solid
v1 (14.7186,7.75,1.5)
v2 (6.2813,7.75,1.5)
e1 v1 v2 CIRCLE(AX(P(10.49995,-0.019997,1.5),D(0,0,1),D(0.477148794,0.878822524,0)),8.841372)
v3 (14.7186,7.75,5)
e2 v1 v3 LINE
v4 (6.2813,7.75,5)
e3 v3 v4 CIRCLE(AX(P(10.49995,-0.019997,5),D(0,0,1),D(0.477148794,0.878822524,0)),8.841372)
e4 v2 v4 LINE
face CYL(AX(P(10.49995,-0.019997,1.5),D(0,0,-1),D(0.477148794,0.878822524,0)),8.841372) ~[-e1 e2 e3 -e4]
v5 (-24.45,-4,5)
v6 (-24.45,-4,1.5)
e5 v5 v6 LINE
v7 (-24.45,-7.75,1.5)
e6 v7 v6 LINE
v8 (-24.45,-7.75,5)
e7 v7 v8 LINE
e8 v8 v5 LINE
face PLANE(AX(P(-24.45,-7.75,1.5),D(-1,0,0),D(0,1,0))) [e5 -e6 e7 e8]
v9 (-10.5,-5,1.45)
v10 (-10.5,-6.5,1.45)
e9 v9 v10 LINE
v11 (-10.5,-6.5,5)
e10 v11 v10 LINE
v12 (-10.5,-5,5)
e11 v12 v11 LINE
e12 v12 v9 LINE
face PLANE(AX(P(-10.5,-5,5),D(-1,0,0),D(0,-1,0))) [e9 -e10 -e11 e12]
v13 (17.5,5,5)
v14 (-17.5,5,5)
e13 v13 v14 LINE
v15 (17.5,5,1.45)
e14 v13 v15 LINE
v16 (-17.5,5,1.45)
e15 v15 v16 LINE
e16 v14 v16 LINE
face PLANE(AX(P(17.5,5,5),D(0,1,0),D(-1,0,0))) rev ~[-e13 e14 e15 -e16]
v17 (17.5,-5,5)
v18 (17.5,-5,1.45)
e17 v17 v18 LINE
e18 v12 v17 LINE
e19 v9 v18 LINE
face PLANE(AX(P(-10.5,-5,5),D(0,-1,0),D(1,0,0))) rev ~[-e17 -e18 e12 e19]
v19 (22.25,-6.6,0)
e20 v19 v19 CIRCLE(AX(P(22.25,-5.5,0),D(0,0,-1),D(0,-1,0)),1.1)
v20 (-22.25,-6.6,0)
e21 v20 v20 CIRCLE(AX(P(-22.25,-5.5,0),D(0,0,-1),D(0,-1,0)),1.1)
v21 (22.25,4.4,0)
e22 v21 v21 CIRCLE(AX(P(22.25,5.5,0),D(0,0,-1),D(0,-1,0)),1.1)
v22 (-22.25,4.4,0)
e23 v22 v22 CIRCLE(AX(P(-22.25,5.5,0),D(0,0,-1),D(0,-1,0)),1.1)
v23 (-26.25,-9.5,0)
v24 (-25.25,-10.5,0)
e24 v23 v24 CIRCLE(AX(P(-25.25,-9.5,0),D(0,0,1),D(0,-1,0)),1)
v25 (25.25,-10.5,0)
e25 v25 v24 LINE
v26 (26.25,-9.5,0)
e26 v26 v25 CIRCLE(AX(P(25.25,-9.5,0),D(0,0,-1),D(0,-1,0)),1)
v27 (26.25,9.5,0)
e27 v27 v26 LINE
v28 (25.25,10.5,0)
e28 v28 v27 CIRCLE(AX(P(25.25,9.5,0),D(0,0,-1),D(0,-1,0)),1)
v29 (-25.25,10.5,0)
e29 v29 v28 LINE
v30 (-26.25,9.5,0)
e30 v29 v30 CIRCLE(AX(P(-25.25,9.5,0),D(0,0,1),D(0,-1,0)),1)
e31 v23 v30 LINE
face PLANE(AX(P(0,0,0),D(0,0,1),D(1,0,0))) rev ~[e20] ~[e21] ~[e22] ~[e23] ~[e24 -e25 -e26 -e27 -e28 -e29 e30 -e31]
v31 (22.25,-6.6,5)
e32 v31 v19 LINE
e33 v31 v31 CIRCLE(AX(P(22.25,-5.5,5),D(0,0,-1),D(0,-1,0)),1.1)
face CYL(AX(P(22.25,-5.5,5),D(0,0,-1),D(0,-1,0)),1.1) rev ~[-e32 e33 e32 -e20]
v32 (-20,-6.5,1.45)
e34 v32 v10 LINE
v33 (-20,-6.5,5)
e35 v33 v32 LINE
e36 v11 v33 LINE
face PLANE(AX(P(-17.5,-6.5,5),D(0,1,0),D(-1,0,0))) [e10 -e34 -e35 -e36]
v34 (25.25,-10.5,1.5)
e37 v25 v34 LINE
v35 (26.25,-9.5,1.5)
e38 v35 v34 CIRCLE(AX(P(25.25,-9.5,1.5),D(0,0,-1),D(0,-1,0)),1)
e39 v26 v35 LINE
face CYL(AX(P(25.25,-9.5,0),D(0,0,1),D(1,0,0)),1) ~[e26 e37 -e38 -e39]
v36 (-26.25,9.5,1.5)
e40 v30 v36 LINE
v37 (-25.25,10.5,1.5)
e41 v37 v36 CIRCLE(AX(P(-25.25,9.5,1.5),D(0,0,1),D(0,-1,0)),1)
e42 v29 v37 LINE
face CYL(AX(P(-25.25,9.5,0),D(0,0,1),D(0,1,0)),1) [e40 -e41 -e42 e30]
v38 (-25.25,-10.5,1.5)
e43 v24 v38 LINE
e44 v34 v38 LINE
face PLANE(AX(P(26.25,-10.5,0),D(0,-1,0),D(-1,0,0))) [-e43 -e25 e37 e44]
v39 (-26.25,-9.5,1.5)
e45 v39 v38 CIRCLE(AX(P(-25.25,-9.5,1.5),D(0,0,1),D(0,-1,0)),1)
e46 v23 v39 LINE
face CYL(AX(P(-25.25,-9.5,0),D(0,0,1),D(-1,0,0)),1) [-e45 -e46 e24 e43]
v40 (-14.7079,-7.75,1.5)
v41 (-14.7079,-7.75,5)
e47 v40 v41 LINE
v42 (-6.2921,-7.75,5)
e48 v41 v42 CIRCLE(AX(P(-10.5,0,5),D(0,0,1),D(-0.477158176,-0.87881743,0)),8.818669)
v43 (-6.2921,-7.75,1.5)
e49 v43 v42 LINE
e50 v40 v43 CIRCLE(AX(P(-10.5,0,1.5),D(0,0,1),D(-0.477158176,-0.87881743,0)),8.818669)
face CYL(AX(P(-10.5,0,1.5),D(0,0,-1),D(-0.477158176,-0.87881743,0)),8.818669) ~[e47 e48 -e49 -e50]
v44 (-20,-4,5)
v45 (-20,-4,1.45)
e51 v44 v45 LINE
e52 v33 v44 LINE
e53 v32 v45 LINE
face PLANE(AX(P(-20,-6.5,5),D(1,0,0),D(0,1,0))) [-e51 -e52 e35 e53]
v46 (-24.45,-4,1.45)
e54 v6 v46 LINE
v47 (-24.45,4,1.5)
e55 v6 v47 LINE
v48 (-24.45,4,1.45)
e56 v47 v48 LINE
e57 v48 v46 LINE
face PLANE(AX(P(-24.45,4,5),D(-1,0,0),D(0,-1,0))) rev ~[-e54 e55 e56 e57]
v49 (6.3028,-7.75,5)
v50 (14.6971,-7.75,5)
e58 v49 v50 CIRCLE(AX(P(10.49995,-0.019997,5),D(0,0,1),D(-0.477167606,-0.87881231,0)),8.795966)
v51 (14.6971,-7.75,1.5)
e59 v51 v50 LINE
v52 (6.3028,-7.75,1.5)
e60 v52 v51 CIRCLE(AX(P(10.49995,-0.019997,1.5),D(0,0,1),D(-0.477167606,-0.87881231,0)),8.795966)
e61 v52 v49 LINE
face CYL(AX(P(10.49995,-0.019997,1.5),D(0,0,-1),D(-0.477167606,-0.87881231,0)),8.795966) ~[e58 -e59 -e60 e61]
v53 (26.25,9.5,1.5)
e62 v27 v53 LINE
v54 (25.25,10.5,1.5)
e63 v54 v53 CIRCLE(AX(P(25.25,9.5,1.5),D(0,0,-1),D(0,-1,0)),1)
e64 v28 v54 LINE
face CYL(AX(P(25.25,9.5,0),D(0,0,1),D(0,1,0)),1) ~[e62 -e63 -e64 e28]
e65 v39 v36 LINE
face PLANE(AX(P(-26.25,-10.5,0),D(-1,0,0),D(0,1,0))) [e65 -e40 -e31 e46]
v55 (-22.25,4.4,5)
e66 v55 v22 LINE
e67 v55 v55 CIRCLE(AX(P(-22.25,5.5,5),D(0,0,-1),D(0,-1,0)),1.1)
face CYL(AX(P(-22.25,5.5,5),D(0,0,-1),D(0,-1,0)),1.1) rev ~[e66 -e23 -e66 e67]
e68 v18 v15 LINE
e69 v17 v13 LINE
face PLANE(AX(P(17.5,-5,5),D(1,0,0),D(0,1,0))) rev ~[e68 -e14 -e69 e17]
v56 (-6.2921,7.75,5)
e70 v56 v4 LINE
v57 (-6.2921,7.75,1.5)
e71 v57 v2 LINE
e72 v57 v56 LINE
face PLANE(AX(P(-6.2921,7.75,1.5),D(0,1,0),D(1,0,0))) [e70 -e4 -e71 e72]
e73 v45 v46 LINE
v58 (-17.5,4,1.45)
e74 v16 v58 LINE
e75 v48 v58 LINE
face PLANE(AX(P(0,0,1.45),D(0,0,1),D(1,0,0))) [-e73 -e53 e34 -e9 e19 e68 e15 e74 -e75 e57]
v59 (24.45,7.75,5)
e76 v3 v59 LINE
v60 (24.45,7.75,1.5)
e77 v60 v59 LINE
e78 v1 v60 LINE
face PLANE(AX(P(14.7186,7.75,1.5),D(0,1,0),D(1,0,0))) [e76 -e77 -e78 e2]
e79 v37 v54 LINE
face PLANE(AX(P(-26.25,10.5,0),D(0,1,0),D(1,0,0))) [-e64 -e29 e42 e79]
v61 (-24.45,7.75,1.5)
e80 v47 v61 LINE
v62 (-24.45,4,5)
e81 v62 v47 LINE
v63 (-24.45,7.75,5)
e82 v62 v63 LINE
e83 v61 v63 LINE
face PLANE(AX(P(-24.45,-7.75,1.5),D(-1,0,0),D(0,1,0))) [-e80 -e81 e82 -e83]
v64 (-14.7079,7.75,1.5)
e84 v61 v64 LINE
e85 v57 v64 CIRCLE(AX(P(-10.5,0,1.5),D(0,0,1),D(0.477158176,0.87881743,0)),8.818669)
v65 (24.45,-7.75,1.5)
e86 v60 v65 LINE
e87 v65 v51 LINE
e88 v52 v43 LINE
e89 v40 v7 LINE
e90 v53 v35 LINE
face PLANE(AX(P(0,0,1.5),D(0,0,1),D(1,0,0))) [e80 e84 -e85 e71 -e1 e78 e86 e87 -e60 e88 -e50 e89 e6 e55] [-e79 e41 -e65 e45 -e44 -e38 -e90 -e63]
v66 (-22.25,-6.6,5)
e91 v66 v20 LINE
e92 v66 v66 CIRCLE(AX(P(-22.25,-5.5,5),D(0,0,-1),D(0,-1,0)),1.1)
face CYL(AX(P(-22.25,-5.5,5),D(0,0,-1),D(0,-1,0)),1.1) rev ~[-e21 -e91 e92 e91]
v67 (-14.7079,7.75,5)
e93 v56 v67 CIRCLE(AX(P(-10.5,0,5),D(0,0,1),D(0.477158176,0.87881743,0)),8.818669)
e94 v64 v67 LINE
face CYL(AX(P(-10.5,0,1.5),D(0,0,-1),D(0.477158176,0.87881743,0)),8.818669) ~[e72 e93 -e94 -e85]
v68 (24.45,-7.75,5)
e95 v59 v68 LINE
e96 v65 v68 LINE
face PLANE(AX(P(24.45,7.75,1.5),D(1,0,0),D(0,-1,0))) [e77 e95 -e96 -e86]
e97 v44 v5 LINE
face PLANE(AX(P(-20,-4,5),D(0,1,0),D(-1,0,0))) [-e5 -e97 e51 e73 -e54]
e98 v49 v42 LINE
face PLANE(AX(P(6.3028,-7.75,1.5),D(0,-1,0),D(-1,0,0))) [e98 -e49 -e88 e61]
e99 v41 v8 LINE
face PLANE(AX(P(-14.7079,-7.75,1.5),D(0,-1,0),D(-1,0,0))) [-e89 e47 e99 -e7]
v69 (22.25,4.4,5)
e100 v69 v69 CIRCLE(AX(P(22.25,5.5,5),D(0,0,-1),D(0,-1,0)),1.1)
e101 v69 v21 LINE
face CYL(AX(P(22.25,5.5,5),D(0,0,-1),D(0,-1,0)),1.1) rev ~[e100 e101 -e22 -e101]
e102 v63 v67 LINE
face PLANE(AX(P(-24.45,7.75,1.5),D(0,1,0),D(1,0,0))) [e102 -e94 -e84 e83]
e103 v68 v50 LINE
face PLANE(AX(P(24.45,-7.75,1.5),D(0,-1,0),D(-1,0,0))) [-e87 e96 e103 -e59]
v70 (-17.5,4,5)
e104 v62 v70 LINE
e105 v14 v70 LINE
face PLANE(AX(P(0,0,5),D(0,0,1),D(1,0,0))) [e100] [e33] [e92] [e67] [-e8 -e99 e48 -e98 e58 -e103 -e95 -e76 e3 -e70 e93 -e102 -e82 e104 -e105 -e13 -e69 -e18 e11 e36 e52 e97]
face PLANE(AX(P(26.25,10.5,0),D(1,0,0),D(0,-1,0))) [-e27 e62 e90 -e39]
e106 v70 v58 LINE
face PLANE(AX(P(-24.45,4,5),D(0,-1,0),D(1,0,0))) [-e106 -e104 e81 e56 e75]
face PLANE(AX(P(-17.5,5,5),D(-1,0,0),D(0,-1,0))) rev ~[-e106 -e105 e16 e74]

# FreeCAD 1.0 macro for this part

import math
import FreeCAD as App
import Part
import Sketcher

V = App.Vector
Q = App.Units.Quantity


def edges_at(feature, points):
    """Names of the edges that pass closest to the given points."""
    edges = feature.Shape.Edges
    near = lambda p: min(range(len(edges)), key=lambda i: edges[i].distToShape(Part.Vertex(*p))[0])
    return sorted({f"Edge{near(p) + 1}" for p in points})

doc = App.newDocument("Part")
params = doc.addObject("Spreadsheet::Sheet", "Params")
for row, (alias, value) in enumerate([
    ("sketch1_height", "21 mm"),
    ("sketch1_width", "52.5 mm"),
    ("pad1_length", "1.5 mm"),
    ("sketch2_height", "15.5 mm"),
    ("pad2_length", "3.5 mm"),
    ("sketch3_diameter", "2.2 mm"),
    ("hole_diameter", "2.2 mm"),
    ("fillet_radius", "1 mm"),
    ("sketch4_width", "35 mm"),
    ("sketch4_height", "10 mm"),
    ("sketch4_width2", "9.5 mm"),
    ("sketch4_height2", "1.5 mm"),
    ("sketch4_width3", "28 mm"),
    ("pocket1_length", "3.55 mm"),
], start=1):
    params.set(f"A{row}", alias)
    params.set(f"B{row}", "=" + value)
    params.setAlias(f"B{row}", alias)

body = doc.addObject("PartDesign::Body", "Body")

# Sketch on XY plane
sketch1 = body.newObject("Sketcher::SketchObject", "Sketch")
sketch1.AttachmentSupport = (doc.getObject("XY_Plane"), [""])
sketch1.MapMode = "FlatFace"
sketch1.addGeometry([
    Part.LineSegment(V(26, 10, 0), V(-26, 10, 0)),
    Part.LineSegment(V(-26, 10, 0), V(-26, -10, 0)),
    Part.LineSegment(V(-26, -10, 0), V(26, -10, 0)),
    Part.LineSegment(V(26, -10, 0), V(26, 10, 0)),
], False)
sketch1.addConstraint([
    Sketcher.Constraint("Coincident", 0, 2, 1, 1),
    Sketcher.Constraint("Coincident", 1, 2, 2, 1),
    Sketcher.Constraint("Coincident", 2, 2, 3, 1),
    Sketcher.Constraint("Coincident", 3, 2, 0, 1),
    Sketcher.Constraint("Horizontal", 0),
    Sketcher.Constraint("Vertical", 1),
    Sketcher.Constraint("Horizontal", 2),
    Sketcher.Constraint("Vertical", 3),
    Sketcher.Constraint("Symmetric", 0, 2, 2, 2, -1, 1),
    Sketcher.Constraint("DistanceY", 1, 2, 1, 1, Q("21 mm")),
    Sketcher.Constraint("DistanceX", 0, 2, 0, 1, Q("52.5 mm")),
])
sketch1.setExpression("Constraints[9]", "Params.sketch1_height")
sketch1.setExpression("Constraints[10]", "Params.sketch1_width")
pad1 = body.newObject("PartDesign::Pad", "Pad")
pad1.Profile = sketch1
pad1.setExpression("Length", "Params.pad1_length")

# Sketch on XY plane
sketch2 = body.newObject("Sketcher::SketchObject", "Sketch001")
sketch2.AttachmentSupport = (doc.getObject("XY_Plane"), [""])
sketch2.MapMode = "FlatFace"
sketch2.AttachmentOffset = App.Placement(V(0, 0, 1.5), App.Rotation())
sketch2.addGeometry([
    Part.LineSegment(V(-24, 8, 0), V(-24, -8, 0)),  # 0
    Part.LineSegment(V(-24, -8, 0), V(-15, -8, 0)),  # 1
    Part.ArcOfCircle(Part.Circle(V(-10, 0, 0), V(0, 0, 1), 9), math.radians(-118), math.radians(-62)),  # 2
    Part.LineSegment(V(-6, -8, 0), V(6, -8, 0)),  # 3
    Part.ArcOfCircle(Part.Circle(V(10, 0, 0), V(0, 0, 1), 9), math.radians(-119), math.radians(-62)),  # 4
    Part.LineSegment(V(15, -8, 0), V(24, -8, 0)),  # 5
    Part.LineSegment(V(24, -8, 0), V(24, 8, 0)),  # 6
    Part.LineSegment(V(24, 8, 0), V(15, 8, 0)),  # 7
    Part.ArcOfCircle(Part.Circle(V(10, 0, 0), V(0, 0, 1), 9), math.radians(62), math.radians(119)),  # 8
    Part.LineSegment(V(6, 8, 0), V(-6, 8, 0)),  # 9
    Part.ArcOfCircle(Part.Circle(V(-10, 0, 0), V(0, 0, 1), 9), math.radians(62), math.radians(118)),  # 10
    Part.LineSegment(V(-15, 8, 0), V(-24, 8, 0)),  # 11
], False)
sketch2.addConstraint([
    Sketcher.Constraint("Coincident", 0, 2, 1, 1),
    Sketcher.Constraint("Coincident", 1, 2, 2, 1),
    Sketcher.Constraint("Coincident", 2, 2, 3, 1),
    Sketcher.Constraint("Coincident", 3, 2, 4, 1),
    Sketcher.Constraint("Coincident", 4, 2, 5, 1),
    Sketcher.Constraint("Coincident", 5, 2, 6, 1),
    Sketcher.Constraint("Coincident", 6, 2, 7, 1),
    Sketcher.Constraint("Coincident", 7, 2, 8, 1),
    Sketcher.Constraint("Coincident", 8, 2, 9, 1),
    Sketcher.Constraint("Coincident", 9, 2, 10, 1),
    Sketcher.Constraint("Coincident", 10, 2, 11, 1),
    Sketcher.Constraint("Coincident", 11, 2, 0, 1),
    Sketcher.Constraint("Vertical", 0),
    Sketcher.Constraint("Horizontal", 1),
    Sketcher.Constraint("Horizontal", 3),
    Sketcher.Constraint("Horizontal", 5),
    Sketcher.Constraint("Vertical", 6),
    Sketcher.Constraint("Horizontal", 7),
    Sketcher.Constraint("Horizontal", 9),
    Sketcher.Constraint("Horizontal", 11),
    Sketcher.Constraint("Coincident", 8, 3, 4, 3),
    Sketcher.Constraint("Coincident", 10, 3, 2, 3),
    Sketcher.Constraint("Equal", 2, 10),
    Sketcher.Constraint("Symmetric", 0, 2, 6, 2, -1, 1),
    Sketcher.Constraint("Symmetric", 2, 2, 9, 2, -1),
    Sketcher.Constraint("Horizontal", 1, 2, 2, 2),
    Sketcher.Constraint("Horizontal", 3, 2, 4, 2),
    Sketcher.Constraint("Horizontal", 9, 2, 10, 2),
    Sketcher.Constraint("DistanceY", 0, 2, 0, 1, Q("15.5 mm")),
    Sketcher.Constraint("DistanceX", 2, 3, -1, 1, Q("10.5 mm")),
    Sketcher.Constraint("DistanceX", -1, 1, 4, 3, Q("10.5 mm")),
    Sketcher.Constraint("DistanceX", 0, 2, -1, 1, Q("24.45 mm")),
    Sketcher.Constraint("Radius", 2, Q("8.8187 mm")),
    Sketcher.Constraint("Radius", 4, Q("8.7962 mm")),
    Sketcher.Constraint("Radius", 8, Q("8.8412 mm")),
    Sketcher.Constraint("DistanceX", 3, 1, 3, 2, Q("12.595 mm")),
])
sketch2.setExpression("Constraints[28]", "Params.sketch2_height")
pad2 = body.newObject("PartDesign::Pad", "Pad001")
pad2.Profile = sketch2
pad2.setExpression("Length", "Params.pad2_length")

# Sketch on XY plane
sketch3 = body.newObject("Sketcher::SketchObject", "Sketch002")
sketch3.AttachmentSupport = (doc.getObject("XY_Plane"), [""])
sketch3.MapMode = "FlatFace"
sketch3.AttachmentOffset = App.Placement(V(0, 0, 5), App.Rotation())
sketch3.addGeometry([
    Part.Circle(V(-22.2, 5.5, 0), V(0, 0, 1), 1.1),
    Part.Circle(V(-22.2, -5.5, 0), V(0, 0, 1), 1.1),
    Part.Circle(V(22.2, 5.5, 0), V(0, 0, 1), 1.1),
    Part.Circle(V(22.2, -5.5, 0), V(0, 0, 1), 1.1),
], False)
sketch3.addConstraint([
    Sketcher.Constraint("Equal", 0, 1),
    Sketcher.Constraint("Equal", 1, 2),
    Sketcher.Constraint("Equal", 2, 3),
    Sketcher.Constraint("Symmetric", 1, 3, 2, 3, -1, 1),
    Sketcher.Constraint("Symmetric", 0, 3, 3, 3, -1, 1),
    Sketcher.Constraint("Symmetric", 0, 3, 2, 3, -2),
    Sketcher.Constraint("Diameter", 0, Q("2.2 mm")),
    Sketcher.Constraint("DistanceY", 1, 3, 0, 3, Q("11 mm")),
    Sketcher.Constraint("DistanceX", 0, 3, 2, 3, Q("44.5 mm")),
])
sketch3.setExpression("Constraints[6]", "Params.sketch3_diameter")
doc.recompute()
hole = body.newObject("PartDesign::Hole", "Hole")
hole.Profile = sketch3
hole.ThreadType = "None"
hole.setExpression("Diameter", "Params.hole_diameter")
hole.DepthType = "ThroughAll"
doc.recompute()

fillet = body.newObject("PartDesign::Fillet", "Fillet")
fillet.Base = (hole, edges_at(hole, [
    (-26.25, -10.5, 0.75),
    (26.25, -10.5, 0.75),
    (26.25, 10.5, 0.75),
    (-26.25, 10.5, 0.75),
]))
fillet.setExpression("Radius", "Params.fillet_radius")

# Sketch on XY plane
sketch4 = body.newObject("Sketcher::SketchObject", "Sketch003")
sketch4.AttachmentSupport = (doc.getObject("XY_Plane"), [""])
sketch4.MapMode = "FlatFace"
sketch4.AttachmentOffset = App.Placement(V(0, 0, 5), App.Rotation())
sketch4.addGeometry([
    Part.LineSegment(V(-10.5, -6.5, 0), V(-10.5, -5, 0)),  # 0
    Part.LineSegment(V(-10.5, -5, 0), V(17.5, -5, 0)),  # 1
    Part.LineSegment(V(17.5, -5, 0), V(17.5, 5, 0)),  # 2
    Part.LineSegment(V(17.5, 5, 0), V(-17.5, 5, 0)),  # 3
    Part.LineSegment(V(-17.5, 5, 0), V(-17.5, 4, 0)),  # 4
    Part.LineSegment(V(-17.5, 4, 0), V(-24.4, 4, 0)),  # 5
    Part.LineSegment(V(-24.4, 4, 0), V(-24.4, -4, 0)),  # 6
    Part.LineSegment(V(-24.4, -4, 0), V(-20, -4, 0)),  # 7
    Part.LineSegment(V(-20, -4, 0), V(-20, -6.5, 0)),  # 8
    Part.LineSegment(V(-20, -6.5, 0), V(-10.5, -6.5, 0)),  # 9
], False)
sketch4.addConstraint([
    Sketcher.Constraint("Coincident", 0, 2, 1, 1),
    Sketcher.Constraint("Coincident", 1, 2, 2, 1),
    Sketcher.Constraint("Coincident", 2, 2, 3, 1),
    Sketcher.Constraint("Coincident", 3, 2, 4, 1),
    Sketcher.Constraint("Coincident", 4, 2, 5, 1),
    Sketcher.Constraint("Coincident", 5, 2, 6, 1),
    Sketcher.Constraint("Coincident", 6, 2, 7, 1),
    Sketcher.Constraint("Coincident", 7, 2, 8, 1),
    Sketcher.Constraint("Coincident", 8, 2, 9, 1),
    Sketcher.Constraint("Coincident", 9, 2, 0, 1),
    Sketcher.Constraint("Vertical", 0),
    Sketcher.Constraint("Horizontal", 1),
    Sketcher.Constraint("Vertical", 2),
    Sketcher.Constraint("Horizontal", 3),
    Sketcher.Constraint("Vertical", 4),
    Sketcher.Constraint("Horizontal", 5),
    Sketcher.Constraint("Vertical", 6),
    Sketcher.Constraint("Horizontal", 7),
    Sketcher.Constraint("Vertical", 8),
    Sketcher.Constraint("Horizontal", 9),
    Sketcher.Constraint("Symmetric", 1, 2, 3, 2, -1, 1),
    Sketcher.Constraint("DistanceX", 3, 2, 3, 1, Q("35 mm")),
    Sketcher.Constraint("DistanceY", 2, 1, 2, 2, Q("10 mm")),
    Sketcher.Constraint("DistanceX", 9, 1, 9, 2, Q("9.5 mm")),
    Sketcher.Constraint("DistanceY", 0, 1, 0, 2, Q("1.5 mm")),
    Sketcher.Constraint("DistanceX", 1, 1, 1, 2, Q("28 mm")),
    Sketcher.Constraint("DistanceY", 4, 2, 4, 1, Q("1 mm")),
    Sketcher.Constraint("DistanceY", 6, 2, 6, 1, Q("8 mm")),
    Sketcher.Constraint("DistanceX", 5, 2, 5, 1, Q("6.95 mm")),
])
sketch4.setExpression("Constraints[21]", "Params.sketch4_width")
sketch4.setExpression("Constraints[22]", "Params.sketch4_height")
sketch4.setExpression("Constraints[23]", "Params.sketch4_width2")
sketch4.setExpression("Constraints[24]", "Params.sketch4_height2")
sketch4.setExpression("Constraints[25]", "Params.sketch4_width3")
pocket1 = body.newObject("PartDesign::Pocket", "Pocket")
pocket1.Profile = sketch4
pocket1.setExpression("Length", "Params.pocket1_length")

doc.recompute()
